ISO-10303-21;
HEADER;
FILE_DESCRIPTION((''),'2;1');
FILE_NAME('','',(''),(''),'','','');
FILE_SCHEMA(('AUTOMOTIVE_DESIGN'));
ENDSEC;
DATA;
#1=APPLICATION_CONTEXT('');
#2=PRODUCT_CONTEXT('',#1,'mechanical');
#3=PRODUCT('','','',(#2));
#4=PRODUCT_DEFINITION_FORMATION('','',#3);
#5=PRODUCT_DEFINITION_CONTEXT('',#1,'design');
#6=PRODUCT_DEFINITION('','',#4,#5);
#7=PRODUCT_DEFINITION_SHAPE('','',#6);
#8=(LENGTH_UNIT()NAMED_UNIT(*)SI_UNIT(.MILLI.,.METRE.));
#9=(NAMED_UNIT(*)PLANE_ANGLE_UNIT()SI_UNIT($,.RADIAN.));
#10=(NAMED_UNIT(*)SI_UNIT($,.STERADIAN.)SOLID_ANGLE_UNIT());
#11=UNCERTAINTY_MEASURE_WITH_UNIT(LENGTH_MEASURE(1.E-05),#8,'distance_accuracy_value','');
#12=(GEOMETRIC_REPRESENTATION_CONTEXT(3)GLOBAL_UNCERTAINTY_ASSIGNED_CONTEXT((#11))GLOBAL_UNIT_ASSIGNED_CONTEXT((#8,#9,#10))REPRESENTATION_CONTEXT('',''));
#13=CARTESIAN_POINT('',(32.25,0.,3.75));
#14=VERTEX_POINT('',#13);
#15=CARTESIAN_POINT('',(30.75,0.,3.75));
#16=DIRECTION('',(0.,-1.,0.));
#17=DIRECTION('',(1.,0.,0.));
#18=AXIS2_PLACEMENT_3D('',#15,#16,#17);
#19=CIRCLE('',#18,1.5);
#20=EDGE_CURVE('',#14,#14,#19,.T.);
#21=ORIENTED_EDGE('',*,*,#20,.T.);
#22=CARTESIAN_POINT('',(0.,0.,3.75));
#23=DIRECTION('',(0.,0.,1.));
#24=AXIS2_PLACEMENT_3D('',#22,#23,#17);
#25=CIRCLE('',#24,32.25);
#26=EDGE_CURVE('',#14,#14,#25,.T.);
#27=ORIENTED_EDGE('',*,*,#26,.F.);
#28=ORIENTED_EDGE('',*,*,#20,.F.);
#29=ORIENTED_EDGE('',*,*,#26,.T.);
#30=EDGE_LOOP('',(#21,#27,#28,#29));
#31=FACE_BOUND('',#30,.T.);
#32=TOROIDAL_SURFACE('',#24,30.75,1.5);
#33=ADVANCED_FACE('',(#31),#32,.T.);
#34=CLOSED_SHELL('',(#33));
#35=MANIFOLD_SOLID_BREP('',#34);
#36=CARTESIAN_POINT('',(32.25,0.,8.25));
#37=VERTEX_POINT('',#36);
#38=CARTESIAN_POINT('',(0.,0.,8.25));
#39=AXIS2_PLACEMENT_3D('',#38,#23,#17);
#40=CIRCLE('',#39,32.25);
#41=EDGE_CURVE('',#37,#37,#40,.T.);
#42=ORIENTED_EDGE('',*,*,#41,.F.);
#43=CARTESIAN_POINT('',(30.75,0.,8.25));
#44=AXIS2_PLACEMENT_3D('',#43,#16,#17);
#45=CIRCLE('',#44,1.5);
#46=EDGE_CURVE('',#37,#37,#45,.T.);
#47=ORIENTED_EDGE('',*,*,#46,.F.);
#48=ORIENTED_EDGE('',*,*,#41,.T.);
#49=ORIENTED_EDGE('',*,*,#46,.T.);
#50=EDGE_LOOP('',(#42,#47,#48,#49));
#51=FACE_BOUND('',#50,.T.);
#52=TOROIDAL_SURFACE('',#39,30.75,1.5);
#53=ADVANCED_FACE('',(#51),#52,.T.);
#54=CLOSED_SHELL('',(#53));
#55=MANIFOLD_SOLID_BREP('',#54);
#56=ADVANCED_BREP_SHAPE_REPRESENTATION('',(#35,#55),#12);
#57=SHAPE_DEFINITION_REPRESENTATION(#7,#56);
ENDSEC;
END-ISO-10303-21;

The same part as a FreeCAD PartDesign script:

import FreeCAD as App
import Part
import Sketcher

V = App.Vector
Q = App.Units.Quantity

doc = App.newDocument("Part")
params = doc.addObject("Spreadsheet::Sheet", "Params")
for row, (alias, value) in enumerate([
    ("sketch1_diameter", "3 mm"),
    ("revolution_angle", "360 deg"),
    ("sketch2_diameter", "3 mm"),
    ("revolution2_angle", "360 deg"),
], start=1):
    params.set(f"A{row}", alias)
    params.set(f"B{row}", "=" + value)
    params.setAlias(f"B{row}", alias)

body = doc.addObject("PartDesign::Body", "Body")

# Sketch on XZ plane
sketch1 = doc.addObject("Sketcher::SketchObject", "Sketch")
body.addObject(sketch1)
sketch1.AttachmentSupport = (doc.XZ_Plane, [""])
sketch1.MapMode = "FlatFace"
sketch1.addGeometry(Part.Circle(V(30.75, 8.25, 0), V(0, 0, 1), 1.5), False)
sketch1.addConstraint([
    Sketcher.Constraint("Diameter", 0, Q("3 mm")),
    Sketcher.Constraint("DistanceX", -1, 1, 0, 3, Q("30.75 mm")),
    Sketcher.Constraint("DistanceY", -1, 1, 0, 3, Q("8.25 mm")),
])
sketch1.setExpression("Constraints[0]", "Params.sketch1_diameter")
revolution = doc.addObject("PartDesign::Revolution", "Revolution")
body.addObject(revolution)
revolution.Profile = sketch1
revolution.ReferenceAxis = (sketch1, ["V_Axis"])
revolution.setExpression("Angle", "Params.revolution_angle")
body2 = doc.addObject("PartDesign::Body", "Body001")
body2.AllowCompound = True

# Sketch on XZ plane
sketch2 = doc.addObject("Sketcher::SketchObject", "Sketch001")
body2.addObject(sketch2)
sketch2.AttachmentSupport = (doc.getObject("XZ_Plane001"), [""])
sketch2.MapMode = "FlatFace"
sketch2.addGeometry(Part.Circle(V(30.75, 3.75, 0), V(0, 0, 1), 1.5), False)
sketch2.addConstraint([
    Sketcher.Constraint("Diameter", 0, Q("3 mm")),
    Sketcher.Constraint("DistanceX", -1, 1, 0, 3, Q("30.75 mm")),
    Sketcher.Constraint("DistanceY", -1, 1, 0, 3, Q("3.75 mm")),
])
sketch2.setExpression("Constraints[0]", "Params.sketch2_diameter")
revolution2 = doc.addObject("PartDesign::Revolution", "Revolution001")
body2.addObject(revolution2)
revolution2.Profile = sketch2
revolution2.ReferenceAxis = (sketch2, ["V_Axis"])
revolution2.setExpression("Angle", "Params.revolution2_angle")
doc.recompute()

boolean = doc.addObject("PartDesign::Boolean", "Boolean")
body2.addObject(boolean)
boolean.Type = "Fuse"
boolean.addObjects([body])

doc.recompute()
